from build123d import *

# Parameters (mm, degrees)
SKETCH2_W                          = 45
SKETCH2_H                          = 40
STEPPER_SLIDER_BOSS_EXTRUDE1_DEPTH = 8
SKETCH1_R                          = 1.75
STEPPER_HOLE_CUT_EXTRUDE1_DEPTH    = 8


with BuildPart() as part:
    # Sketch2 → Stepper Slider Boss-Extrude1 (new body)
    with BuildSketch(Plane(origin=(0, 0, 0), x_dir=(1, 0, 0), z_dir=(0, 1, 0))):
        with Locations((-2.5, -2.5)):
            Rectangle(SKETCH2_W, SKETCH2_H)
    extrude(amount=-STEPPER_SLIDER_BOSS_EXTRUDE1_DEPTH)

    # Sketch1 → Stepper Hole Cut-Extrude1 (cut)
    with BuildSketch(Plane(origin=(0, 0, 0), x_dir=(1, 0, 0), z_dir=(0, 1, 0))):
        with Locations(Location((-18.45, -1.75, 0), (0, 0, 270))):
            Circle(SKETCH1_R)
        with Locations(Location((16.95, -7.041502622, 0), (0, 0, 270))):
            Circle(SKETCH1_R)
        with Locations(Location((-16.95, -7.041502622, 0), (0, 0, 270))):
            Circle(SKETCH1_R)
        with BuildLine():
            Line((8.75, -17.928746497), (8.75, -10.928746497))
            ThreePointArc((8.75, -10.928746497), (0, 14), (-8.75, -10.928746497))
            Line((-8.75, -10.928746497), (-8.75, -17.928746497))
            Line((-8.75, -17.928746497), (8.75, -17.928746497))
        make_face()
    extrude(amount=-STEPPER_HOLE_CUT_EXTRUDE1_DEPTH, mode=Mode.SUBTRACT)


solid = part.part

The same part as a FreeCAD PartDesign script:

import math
import FreeCAD as App
import Part
import Sketcher
Q = App.Units.Quantity


def add_polygon(sketch, points):
    """Adds a closed chain of lines whose ends are joined by coincident constraints."""
    first, n = sketch.GeometryCount, len(points)
    for a, b in zip(points, points[1:] + points[:1]):
        sketch.addGeometry(Part.LineSegment(App.Vector(*a, 0), App.Vector(*b, 0)), False)
    for i in range(n):
        sketch.addConstraint(Sketcher.Constraint("Coincident", first + i, 2, first + (i + 1) % n, 1))

doc = App.newDocument("Part")
body = doc.addObject("PartDesign::Body", "Body")

sketch1 = body.newObject("Sketcher::SketchObject", "Sketch")
sketch1.AttachmentSupport = (doc.getObject("XZ_Plane"), [""])
sketch1.MapMode = "FlatFace"
add_polygon(sketch1, [(-25, -17.5), (-25, 22.5), (20, 22.5), (20, -17.5)])
sketch1.addConstraint(Sketcher.Constraint("Vertical", 0))
sketch1.addConstraint(Sketcher.Constraint("Horizontal", 1))
sketch1.addConstraint(Sketcher.Constraint("Vertical", 2))
sketch1.addConstraint(Sketcher.Constraint("Horizontal", 3))
sketch1.addConstraint(Sketcher.Constraint("DistanceX", 1, 1, 1, 2, Q("45 mm")))
sketch1.addConstraint(Sketcher.Constraint("DistanceY", 0, 1, 0, 2, Q("40 mm")))
sketch1.addConstraint(Sketcher.Constraint("DistanceX", 0, 2, -1, 1, Q("25 mm")))
sketch1.addConstraint(Sketcher.Constraint("DistanceY", -1, 1, 0, 2, Q("22.5 mm")))
pad1 = body.newObject("PartDesign::Pad", "Pad")
pad1.Profile = sketch1
pad1.Length = 8

sketch2 = body.newObject("Sketcher::SketchObject", "Sketch001")
sketch2.AttachmentSupport = (doc.getObject("XZ_Plane"), [""])
sketch2.MapMode = "FlatFace"
sketch2.addGeometry(Part.Circle(App.Vector(-18.45, 1.75, 0), App.Vector(0, 0, 1), 1.75), False)
sketch2.addGeometry(Part.Circle(App.Vector(16.95, 7.041503, 0), App.Vector(0, 0, 1), 1.75), False)
sketch2.addGeometry(Part.Circle(App.Vector(-16.95, 7.041503, 0), App.Vector(0, 0, 1), 1.75), False)
sketch2.addGeometry(Part.LineSegment(App.Vector(8.75, 17.928746, 0), App.Vector(8.75, 10.928746, 0)), False)
sketch2.addGeometry(Part.ArcOfCircle(Part.Circle(App.Vector(0, 0, 0), App.Vector(0, 0, 1), 14), math.radians(128.682187), math.radians(411.317813)), False)
sketch2.addGeometry(Part.LineSegment(App.Vector(-8.75, 10.928746, 0), App.Vector(-8.75, 17.928746, 0)), False)
sketch2.addGeometry(Part.LineSegment(App.Vector(-8.75, 17.928746, 0), App.Vector(8.75, 17.928746, 0)), False)
sketch2.addConstraint(Sketcher.Constraint("Coincident", 3, 2, 4, 2))
sketch2.addConstraint(Sketcher.Constraint("Coincident", 4, 1, 5, 1))
sketch2.addConstraint(Sketcher.Constraint("Coincident", 5, 2, 6, 1))
sketch2.addConstraint(Sketcher.Constraint("Coincident", 6, 2, 3, 1))
sketch2.addConstraint(Sketcher.Constraint("Vertical", 3))
sketch2.addConstraint(Sketcher.Constraint("Vertical", 5))
sketch2.addConstraint(Sketcher.Constraint("Horizontal", 6))
sketch2.addConstraint(Sketcher.Constraint("Coincident", 4, 3, -1, 1))
sketch2.addConstraint(Sketcher.Constraint("Equal", 0, 1))
sketch2.addConstraint(Sketcher.Constraint("Equal", 1, 2))
sketch2.addConstraint(Sketcher.Constraint("Symmetric", 1, 3, 2, 3, -2))
sketch2.addConstraint(Sketcher.Constraint("Horizontal", 3, 2, 4, 1))
sketch2.addConstraint(Sketcher.Constraint("Radius", 4, Q("14 mm")))
sketch2.addConstraint(Sketcher.Constraint("Diameter", 0, Q("3.5 mm")))
sketch2.addConstraint(Sketcher.Constraint("DistanceY", 3, 2, 3, 1, Q("7 mm")))
sketch2.addConstraint(Sketcher.Constraint("DistanceX", 6, 1, 6, 2, Q("17.5 mm")))
sketch2.addConstraint(Sketcher.Constraint("DistanceX", 0, 3, 1, 3, Q("35.4 mm")))
sketch2.addConstraint(Sketcher.Constraint("DistanceX", 0, 3, 2, 3, Q("1.5 mm")))
sketch2.addConstraint(Sketcher.Constraint("DistanceY", -1, 1, 0, 3, Q("1.75 mm")))
sketch2.addConstraint(Sketcher.Constraint("DistanceY", -1, 1, 1, 3, Q("7.041503 mm")))
pocket1 = body.newObject("PartDesign::Pocket", "Pocket")
pocket1.Profile = sketch2
pocket1.Length = 8
pocket1.Reversed = True

doc.recompute()
